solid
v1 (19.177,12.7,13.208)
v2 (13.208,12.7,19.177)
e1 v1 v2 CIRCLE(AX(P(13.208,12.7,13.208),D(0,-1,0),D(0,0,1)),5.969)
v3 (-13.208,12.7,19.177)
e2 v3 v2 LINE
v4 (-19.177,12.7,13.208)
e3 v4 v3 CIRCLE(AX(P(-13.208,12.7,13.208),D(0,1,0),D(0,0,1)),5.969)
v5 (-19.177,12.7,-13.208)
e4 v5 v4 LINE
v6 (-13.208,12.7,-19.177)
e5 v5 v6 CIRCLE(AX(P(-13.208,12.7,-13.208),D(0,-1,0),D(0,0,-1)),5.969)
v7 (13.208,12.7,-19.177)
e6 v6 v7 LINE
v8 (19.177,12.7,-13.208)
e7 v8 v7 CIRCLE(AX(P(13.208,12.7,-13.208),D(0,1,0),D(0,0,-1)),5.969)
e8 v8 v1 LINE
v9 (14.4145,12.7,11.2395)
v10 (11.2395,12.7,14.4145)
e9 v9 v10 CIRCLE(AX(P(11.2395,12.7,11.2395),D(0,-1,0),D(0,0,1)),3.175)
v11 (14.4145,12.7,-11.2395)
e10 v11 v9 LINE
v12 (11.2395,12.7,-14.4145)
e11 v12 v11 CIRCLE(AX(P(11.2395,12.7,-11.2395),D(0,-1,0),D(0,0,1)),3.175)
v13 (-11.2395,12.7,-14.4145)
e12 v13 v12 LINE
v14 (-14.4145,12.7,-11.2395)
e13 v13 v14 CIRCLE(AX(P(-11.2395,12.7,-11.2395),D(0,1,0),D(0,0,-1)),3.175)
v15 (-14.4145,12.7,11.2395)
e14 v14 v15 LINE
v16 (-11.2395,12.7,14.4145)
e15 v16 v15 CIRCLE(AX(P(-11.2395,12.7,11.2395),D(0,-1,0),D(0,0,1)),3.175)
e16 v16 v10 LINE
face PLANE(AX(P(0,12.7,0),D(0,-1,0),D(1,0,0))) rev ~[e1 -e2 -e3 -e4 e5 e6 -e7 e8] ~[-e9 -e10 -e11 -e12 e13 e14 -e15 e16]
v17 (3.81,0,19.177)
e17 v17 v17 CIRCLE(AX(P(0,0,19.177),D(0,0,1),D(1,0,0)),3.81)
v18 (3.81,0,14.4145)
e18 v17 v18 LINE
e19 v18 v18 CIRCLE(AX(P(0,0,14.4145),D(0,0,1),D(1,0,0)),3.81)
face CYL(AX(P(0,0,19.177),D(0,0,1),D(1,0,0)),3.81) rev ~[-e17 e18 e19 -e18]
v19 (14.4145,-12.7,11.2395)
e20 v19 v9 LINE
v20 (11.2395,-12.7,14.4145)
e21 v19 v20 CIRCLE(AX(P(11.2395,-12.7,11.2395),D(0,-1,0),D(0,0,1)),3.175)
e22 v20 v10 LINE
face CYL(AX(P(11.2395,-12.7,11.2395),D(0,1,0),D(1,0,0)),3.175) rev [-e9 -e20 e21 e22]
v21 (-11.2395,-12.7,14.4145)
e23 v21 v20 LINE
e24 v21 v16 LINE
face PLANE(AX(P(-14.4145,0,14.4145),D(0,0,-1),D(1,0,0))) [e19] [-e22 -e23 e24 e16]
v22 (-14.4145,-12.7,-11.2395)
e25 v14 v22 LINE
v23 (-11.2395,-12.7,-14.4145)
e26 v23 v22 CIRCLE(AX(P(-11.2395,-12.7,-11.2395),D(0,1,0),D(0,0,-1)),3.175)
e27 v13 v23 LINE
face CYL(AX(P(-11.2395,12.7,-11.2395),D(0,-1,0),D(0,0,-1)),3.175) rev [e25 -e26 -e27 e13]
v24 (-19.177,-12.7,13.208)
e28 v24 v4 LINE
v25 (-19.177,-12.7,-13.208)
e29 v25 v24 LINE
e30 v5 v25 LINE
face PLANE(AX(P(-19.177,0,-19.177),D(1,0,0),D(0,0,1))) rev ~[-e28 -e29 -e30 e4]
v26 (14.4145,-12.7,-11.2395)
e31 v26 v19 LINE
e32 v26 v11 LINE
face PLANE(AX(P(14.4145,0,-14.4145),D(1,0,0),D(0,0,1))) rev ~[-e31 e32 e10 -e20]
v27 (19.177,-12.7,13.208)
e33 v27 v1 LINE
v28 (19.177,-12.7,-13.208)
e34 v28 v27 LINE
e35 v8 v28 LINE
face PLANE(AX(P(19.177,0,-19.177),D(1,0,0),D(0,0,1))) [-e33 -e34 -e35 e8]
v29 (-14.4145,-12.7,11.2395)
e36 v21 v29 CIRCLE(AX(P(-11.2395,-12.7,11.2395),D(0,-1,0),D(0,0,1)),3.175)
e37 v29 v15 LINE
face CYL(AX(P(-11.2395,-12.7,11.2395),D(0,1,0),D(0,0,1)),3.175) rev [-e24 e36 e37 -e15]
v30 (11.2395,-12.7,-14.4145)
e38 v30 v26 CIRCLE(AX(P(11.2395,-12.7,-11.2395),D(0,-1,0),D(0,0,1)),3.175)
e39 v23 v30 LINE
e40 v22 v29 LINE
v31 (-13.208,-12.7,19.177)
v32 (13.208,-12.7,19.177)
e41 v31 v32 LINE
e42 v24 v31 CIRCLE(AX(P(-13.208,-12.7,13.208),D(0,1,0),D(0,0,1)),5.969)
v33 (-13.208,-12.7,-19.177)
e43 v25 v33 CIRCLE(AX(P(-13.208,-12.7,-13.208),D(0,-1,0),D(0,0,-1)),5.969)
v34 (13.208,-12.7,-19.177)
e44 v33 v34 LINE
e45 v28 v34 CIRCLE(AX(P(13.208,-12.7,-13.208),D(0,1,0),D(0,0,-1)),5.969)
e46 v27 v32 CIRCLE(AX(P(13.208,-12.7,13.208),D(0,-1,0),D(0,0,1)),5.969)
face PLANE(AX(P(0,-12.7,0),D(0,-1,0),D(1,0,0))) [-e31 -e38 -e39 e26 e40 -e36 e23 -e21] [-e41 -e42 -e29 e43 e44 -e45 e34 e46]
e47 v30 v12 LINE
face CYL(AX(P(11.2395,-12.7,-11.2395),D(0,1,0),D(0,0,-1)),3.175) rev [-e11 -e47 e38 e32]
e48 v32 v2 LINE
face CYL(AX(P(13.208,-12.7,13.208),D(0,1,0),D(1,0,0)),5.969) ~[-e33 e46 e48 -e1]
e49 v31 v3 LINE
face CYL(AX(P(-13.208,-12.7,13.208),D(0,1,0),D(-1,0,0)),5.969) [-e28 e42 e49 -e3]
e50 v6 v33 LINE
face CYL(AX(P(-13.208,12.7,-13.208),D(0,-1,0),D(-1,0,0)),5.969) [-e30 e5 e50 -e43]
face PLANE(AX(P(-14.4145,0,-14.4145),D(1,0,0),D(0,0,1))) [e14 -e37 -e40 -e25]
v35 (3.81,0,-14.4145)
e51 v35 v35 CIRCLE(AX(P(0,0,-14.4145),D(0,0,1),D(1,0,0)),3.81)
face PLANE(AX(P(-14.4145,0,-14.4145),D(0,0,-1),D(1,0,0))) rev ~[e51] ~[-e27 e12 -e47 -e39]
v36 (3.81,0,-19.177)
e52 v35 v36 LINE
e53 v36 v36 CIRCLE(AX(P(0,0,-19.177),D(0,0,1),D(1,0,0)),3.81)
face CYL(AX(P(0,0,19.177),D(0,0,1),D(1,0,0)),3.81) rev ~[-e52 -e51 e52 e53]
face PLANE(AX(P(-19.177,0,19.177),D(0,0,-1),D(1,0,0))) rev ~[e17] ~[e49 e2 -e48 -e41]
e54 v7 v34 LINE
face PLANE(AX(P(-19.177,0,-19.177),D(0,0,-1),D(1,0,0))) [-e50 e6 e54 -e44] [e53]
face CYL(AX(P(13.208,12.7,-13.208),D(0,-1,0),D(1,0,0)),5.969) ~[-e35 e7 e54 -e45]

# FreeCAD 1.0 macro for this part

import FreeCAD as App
import Part
import Sketcher
Q = App.Units.Quantity


def edges_at(feature, points):
    """Names of the edges that pass closest to the given points."""
    edges = feature.Shape.Edges
    near = lambda p: min(range(len(edges)), key=lambda i: edges[i].distToShape(Part.Vertex(*p))[0])
    return sorted({f"Edge{near(p) + 1}" for p in points})


def add_polygon(sketch, points):
    """Adds a closed chain of lines whose ends are joined by coincident constraints."""
    first, n = sketch.GeometryCount, len(points)
    for a, b in zip(points, points[1:] + points[:1]):
        sketch.addGeometry(Part.LineSegment(App.Vector(*a, 0), App.Vector(*b, 0)), False)
    for i in range(n):
        sketch.addConstraint(Sketcher.Constraint("Coincident", first + i, 2, first + (i + 1) % n, 1))

doc = App.newDocument("Part")
body = doc.addObject("PartDesign::Body", "Body")

sketch1 = doc.addObject("Sketcher::SketchObject", "Sketch")
body.addObject(sketch1)
sketch1.AttachmentSupport = (doc.XZ_Plane, [""])
sketch1.MapMode = "FlatFace"
add_polygon(sketch1, [(-19, 19), (-19, -19), (19, -19), (19, 19)])
add_polygon(sketch1, [(14, -14), (-14, -14), (-14, 14), (14, 14)])
sketch1.addConstraint(Sketcher.Constraint("Vertical", 0))
sketch1.addConstraint(Sketcher.Constraint("Horizontal", 1))
sketch1.addConstraint(Sketcher.Constraint("Vertical", 2))
sketch1.addConstraint(Sketcher.Constraint("Horizontal", 3))
sketch1.addConstraint(Sketcher.Constraint("Horizontal", 4))
sketch1.addConstraint(Sketcher.Constraint("Vertical", 5))
sketch1.addConstraint(Sketcher.Constraint("Horizontal", 6))
sketch1.addConstraint(Sketcher.Constraint("Vertical", 7))
sketch1.addConstraint(Sketcher.Constraint("Symmetric", 0, 2, 2, 2, -1, 1))
sketch1.addConstraint(Sketcher.Constraint("Symmetric", 4, 2, 6, 2, -1, 1))
sketch1.addConstraint(Sketcher.Constraint("Equal", 3, 0))
sketch1.addConstraint(Sketcher.Constraint("Equal", 6, 5))
sketch1.addConstraint(Sketcher.Constraint("DistanceX", 1, 1, 1, 2, Q("1.51 in")))
sketch1.addConstraint(Sketcher.Constraint("DistanceX", 4, 2, 4, 1, Q("1.135 in")))
pad1 = doc.addObject("PartDesign::Pad", "Pad")
body.addObject(pad1)
pad1.Profile = sketch1
pad1.Length = Q("1 in")
pad1.Midplane = True
doc.recompute()

fillet = doc.addObject("PartDesign::Fillet", "Fillet")
body.addObject(fillet)
fillet.Base = (pad1, edges_at(pad1, [
    (-19.177, 0, 19.177),
    (19.177, 0, 19.177),
    (19.177, 0, -19.177),
    (-19.177, 0, -19.177),
]))
fillet.Radius = Q("0.235 in")
doc.recompute()

fillet2 = doc.addObject("PartDesign::Fillet", "Fillet001")
body.addObject(fillet2)
fillet2.Base = (fillet, edges_at(fillet, [
    (-14.415, 0, 14.415),
    (14.415, 0, 14.415),
    (14.415, 0, -14.415),
    (-14.415, 0, -14.415),
]))
fillet2.Radius = Q("0.125 in")

sketch2 = doc.addObject("Sketcher::SketchObject", "Sketch001")
body.addObject(sketch2)
sketch2.AttachmentSupport = (doc.XY_Plane, [""])
sketch2.MapMode = "FlatFace"
sketch2.AttachmentOffset = App.Placement(App.Vector(0, 0, 0.755 * 25.4), App.Rotation())
sketch2.addGeometry(Part.Circle(App.Vector(0, 0, 0), App.Vector(0, 0, 1), 3.8), False)
sketch2.addConstraint(Sketcher.Constraint("Coincident", 0, 3, -1, 1))
sketch2.addConstraint(Sketcher.Constraint("Diameter", 0, Q("0.3 in")))
pocket1 = doc.addObject("PartDesign::Pocket", "Pocket")
body.addObject(pocket1)
pocket1.Profile = sketch2
pocket1.Length = Q("1.72 in")

doc.recompute()
